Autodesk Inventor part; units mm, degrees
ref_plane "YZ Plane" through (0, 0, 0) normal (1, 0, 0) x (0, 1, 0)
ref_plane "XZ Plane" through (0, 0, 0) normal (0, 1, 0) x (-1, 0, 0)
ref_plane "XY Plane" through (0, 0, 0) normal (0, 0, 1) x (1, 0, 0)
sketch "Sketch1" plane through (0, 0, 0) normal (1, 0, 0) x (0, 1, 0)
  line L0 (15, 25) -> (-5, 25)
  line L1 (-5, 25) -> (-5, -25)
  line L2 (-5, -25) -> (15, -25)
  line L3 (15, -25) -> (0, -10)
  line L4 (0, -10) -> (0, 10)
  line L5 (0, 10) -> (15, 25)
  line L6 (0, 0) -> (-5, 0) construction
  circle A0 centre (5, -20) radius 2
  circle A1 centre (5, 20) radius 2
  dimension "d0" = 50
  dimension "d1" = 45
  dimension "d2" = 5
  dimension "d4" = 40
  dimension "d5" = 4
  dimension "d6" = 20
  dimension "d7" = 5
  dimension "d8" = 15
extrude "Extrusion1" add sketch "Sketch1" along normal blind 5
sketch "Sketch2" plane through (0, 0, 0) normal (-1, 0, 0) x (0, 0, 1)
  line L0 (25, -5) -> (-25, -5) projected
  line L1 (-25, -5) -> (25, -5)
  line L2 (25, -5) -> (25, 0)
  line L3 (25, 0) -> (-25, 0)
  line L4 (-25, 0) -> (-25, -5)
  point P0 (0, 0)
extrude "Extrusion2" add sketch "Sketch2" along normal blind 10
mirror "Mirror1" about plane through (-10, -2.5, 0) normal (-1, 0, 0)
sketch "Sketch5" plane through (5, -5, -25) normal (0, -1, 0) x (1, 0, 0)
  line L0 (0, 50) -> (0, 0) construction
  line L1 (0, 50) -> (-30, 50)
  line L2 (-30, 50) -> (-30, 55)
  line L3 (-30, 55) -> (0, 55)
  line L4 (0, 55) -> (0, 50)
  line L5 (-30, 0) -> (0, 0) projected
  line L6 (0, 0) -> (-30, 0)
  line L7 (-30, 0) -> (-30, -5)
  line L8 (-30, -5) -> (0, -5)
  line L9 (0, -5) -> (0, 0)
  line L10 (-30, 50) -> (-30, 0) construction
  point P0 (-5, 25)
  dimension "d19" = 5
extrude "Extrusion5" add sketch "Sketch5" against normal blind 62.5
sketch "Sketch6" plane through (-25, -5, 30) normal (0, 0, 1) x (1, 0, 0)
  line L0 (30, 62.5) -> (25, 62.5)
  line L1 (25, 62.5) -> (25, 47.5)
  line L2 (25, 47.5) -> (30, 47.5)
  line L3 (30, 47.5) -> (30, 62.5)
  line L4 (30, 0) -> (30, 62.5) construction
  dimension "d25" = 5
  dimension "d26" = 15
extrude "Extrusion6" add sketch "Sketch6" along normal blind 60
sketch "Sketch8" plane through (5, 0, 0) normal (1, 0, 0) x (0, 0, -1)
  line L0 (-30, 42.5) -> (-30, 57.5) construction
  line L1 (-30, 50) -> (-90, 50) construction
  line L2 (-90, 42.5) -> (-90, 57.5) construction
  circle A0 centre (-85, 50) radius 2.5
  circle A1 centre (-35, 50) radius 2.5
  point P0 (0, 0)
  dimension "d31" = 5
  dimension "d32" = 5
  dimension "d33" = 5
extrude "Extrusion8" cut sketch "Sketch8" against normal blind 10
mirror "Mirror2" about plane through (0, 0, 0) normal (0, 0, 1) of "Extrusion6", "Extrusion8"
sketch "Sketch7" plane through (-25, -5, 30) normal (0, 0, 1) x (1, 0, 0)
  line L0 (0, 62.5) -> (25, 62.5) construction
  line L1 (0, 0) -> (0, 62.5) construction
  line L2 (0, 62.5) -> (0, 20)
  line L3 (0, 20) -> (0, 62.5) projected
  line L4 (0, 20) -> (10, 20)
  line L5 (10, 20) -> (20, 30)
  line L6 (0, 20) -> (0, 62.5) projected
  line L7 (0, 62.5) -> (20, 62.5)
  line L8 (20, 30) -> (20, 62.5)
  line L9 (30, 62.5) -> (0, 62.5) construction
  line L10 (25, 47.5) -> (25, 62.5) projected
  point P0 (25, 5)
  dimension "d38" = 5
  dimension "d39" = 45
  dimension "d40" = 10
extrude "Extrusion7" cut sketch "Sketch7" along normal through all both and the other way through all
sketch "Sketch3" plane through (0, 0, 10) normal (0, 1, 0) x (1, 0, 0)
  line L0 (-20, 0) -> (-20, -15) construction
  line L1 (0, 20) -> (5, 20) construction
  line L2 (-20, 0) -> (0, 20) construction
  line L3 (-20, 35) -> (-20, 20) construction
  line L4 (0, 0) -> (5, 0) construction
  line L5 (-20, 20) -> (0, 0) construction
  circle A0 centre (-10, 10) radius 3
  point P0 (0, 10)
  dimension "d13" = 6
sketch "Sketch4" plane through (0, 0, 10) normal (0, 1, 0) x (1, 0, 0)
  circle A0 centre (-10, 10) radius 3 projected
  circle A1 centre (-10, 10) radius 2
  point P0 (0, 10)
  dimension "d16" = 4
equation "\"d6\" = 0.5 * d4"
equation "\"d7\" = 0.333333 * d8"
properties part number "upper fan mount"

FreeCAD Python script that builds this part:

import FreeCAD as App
import Part
import Sketcher

V = App.Vector
Q = App.Units.Quantity

doc = App.newDocument("Part")
body = doc.addObject("PartDesign::Body", "Body")

# Sketch on YZ plane
sketch1 = body.newObject("Sketcher::SketchObject", "Sketch")
sketch1.AttachmentSupport = (doc.getObject("YZ_Plane"), [""])
sketch1.MapMode = "FlatFace"
sketch1.addGeometry(Part.LineSegment(V(0, 10, 0), V(15, 25, 0)), False)
sketch1.addGeometry(Part.LineSegment(V(15, 25, 0), V(-5, 25, 0)), False)
sketch1.addGeometry(Part.LineSegment(V(-5, 25, 0), V(-5, -25, 0)), False)
sketch1.addGeometry(Part.LineSegment(V(-5, -25, 0), V(15, -25, 0)), False)
sketch1.addGeometry(Part.LineSegment(V(15, -25, 0), V(0, -10, 0)), False)
sketch1.addGeometry(Part.LineSegment(V(0, -10, 0), V(0, 10, 0)), False)
sketch1.addGeometry(Part.Circle(V(5, -20, 0), V(0, 0, 1), 2), False)
sketch1.addGeometry(Part.Circle(V(5, 20, 0), V(0, 0, 1), 2), False)
sketch1.addConstraint(Sketcher.Constraint("Coincident", 0, 2, 1, 1))
sketch1.addConstraint(Sketcher.Constraint("Coincident", 1, 2, 2, 1))
sketch1.addConstraint(Sketcher.Constraint("Coincident", 2, 2, 3, 1))
sketch1.addConstraint(Sketcher.Constraint("Coincident", 3, 2, 4, 1))
sketch1.addConstraint(Sketcher.Constraint("Coincident", 4, 2, 5, 1))
sketch1.addConstraint(Sketcher.Constraint("Coincident", 5, 2, 0, 1))
sketch1.addConstraint(Sketcher.Constraint("Horizontal", 1))
sketch1.addConstraint(Sketcher.Constraint("Vertical", 2))
sketch1.addConstraint(Sketcher.Constraint("Horizontal", 3))
sketch1.addConstraint(Sketcher.Constraint("Vertical", 5))
sketch1.addConstraint(Sketcher.Constraint("Equal", 6, 7))
sketch1.addConstraint(Sketcher.Constraint("Symmetric", 4, 2, 5, 2, -1, 1))
sketch1.addConstraint(Sketcher.Constraint("Symmetric", 6, 3, 7, 3, -1))
sketch1.addConstraint(Sketcher.Constraint("Symmetric", 0, 2, 3, 2, -1))
sketch1.addConstraint(Sketcher.Constraint("Perpendicular", 0, 4))
sketch1.addConstraint(Sketcher.Constraint("Equal", 3, 5))
sketch1.addConstraint(Sketcher.Constraint("Diameter", 6, 4.0))
sketch1.addConstraint(Sketcher.Constraint("DistanceX", 1, 2, 1, 1, 20.0))
sketch1.addConstraint(Sketcher.Constraint("DistanceY", 2, 2, 2, 1, 50.0))
sketch1.addConstraint(Sketcher.Constraint("DistanceX", -1, 1, 6, 3, 5.0))
sketch1.addConstraint(Sketcher.Constraint("DistanceY", 6, 3, -1, 1, 20.0))
pad1 = body.newObject("PartDesign::Pad", "Pad")
pad1.Profile = sketch1
pad1.Length = 5

# Sketch on YZ plane
sketch2 = body.newObject("Sketcher::SketchObject", "Sketch001")
sketch2.AttachmentSupport = (doc.getObject("YZ_Plane"), [""])
sketch2.MapMode = "FlatFace"
sketch2.addGeometry(Part.LineSegment(V(-5, -25, 0), V(-5, 25, 0)), False)
sketch2.addGeometry(Part.LineSegment(V(-5, 25, 0), V(0, 25, 0)), False)
sketch2.addGeometry(Part.LineSegment(V(0, 25, 0), V(0, -25, 0)), False)
sketch2.addGeometry(Part.LineSegment(V(0, -25, 0), V(-5, -25, 0)), False)
sketch2.addConstraint(Sketcher.Constraint("Coincident", 0, 2, 1, 1))
sketch2.addConstraint(Sketcher.Constraint("Coincident", 1, 2, 2, 1))
sketch2.addConstraint(Sketcher.Constraint("Coincident", 2, 2, 3, 1))
sketch2.addConstraint(Sketcher.Constraint("Coincident", 3, 2, 0, 1))
sketch2.addConstraint(Sketcher.Constraint("Vertical", 0))
sketch2.addConstraint(Sketcher.Constraint("Horizontal", 1))
sketch2.addConstraint(Sketcher.Constraint("Vertical", 2))
sketch2.addConstraint(Sketcher.Constraint("Horizontal", 3))
sketch2.addConstraint(Sketcher.Constraint("Symmetric", 1, 2, 2, 2, -1, 1))
sketch2.addConstraint(Sketcher.Constraint("DistanceX", 1, 1, 1, 2, 5.0))
sketch2.addConstraint(Sketcher.Constraint("DistanceY", 0, 1, 0, 2, 50.0))
pad2 = body.newObject("PartDesign::Pad", "Pad001")
pad2.Profile = sketch2
pad2.Length = 10
pad2.Reversed = True
doc.recompute()

datumplane = body.newObject("PartDesign::Plane", "DatumPlane")
datumplane.AttachmentSupport = (doc.getObject("YZ_Plane"), [""])
datumplane.MapMode = "FlatFace"
datumplane.AttachmentOffset = App.Placement(V(0, 0, -10), App.Rotation())
mirrored = body.newObject("PartDesign::Mirrored", "Mirrored")
mirrored.TransformMode = "Transform body"
mirrored.MirrorPlane = (datumplane, [""])
body.Tip = mirrored

# Sketch on XZ plane
sketch3 = body.newObject("Sketcher::SketchObject", "Sketch002")
sketch3.AttachmentSupport = (doc.getObject("XZ_Plane"), [""])
sketch3.MapMode = "FlatFace"
sketch3.AttachmentOffset = App.Placement(V(0, 0, 5), App.Rotation())
sketch3.addGeometry(Part.LineSegment(V(-25, 25, 0), V(5, 25, 0)), False)
sketch3.addGeometry(Part.LineSegment(V(5, 25, 0), V(5, 30, 0)), False)
sketch3.addGeometry(Part.LineSegment(V(5, 30, 0), V(-25, 30, 0)), False)
sketch3.addGeometry(Part.LineSegment(V(-25, 30, 0), V(-25, 25, 0)), False)
sketch3.addGeometry(Part.LineSegment(V(5, -25, 0), V(-25, -25, 0)), False)
sketch3.addGeometry(Part.LineSegment(V(-25, -25, 0), V(-25, -30, 0)), False)
sketch3.addGeometry(Part.LineSegment(V(-25, -30, 0), V(5, -30, 0)), False)
sketch3.addGeometry(Part.LineSegment(V(5, -30, 0), V(5, -25, 0)), False)
sketch3.addConstraint(Sketcher.Constraint("Coincident", 0, 2, 1, 1))
sketch3.addConstraint(Sketcher.Constraint("Coincident", 1, 2, 2, 1))
sketch3.addConstraint(Sketcher.Constraint("Coincident", 2, 2, 3, 1))
sketch3.addConstraint(Sketcher.Constraint("Coincident", 3, 2, 0, 1))
sketch3.addConstraint(Sketcher.Constraint("Coincident", 4, 2, 5, 1))
sketch3.addConstraint(Sketcher.Constraint("Coincident", 5, 2, 6, 1))
sketch3.addConstraint(Sketcher.Constraint("Coincident", 6, 2, 7, 1))
sketch3.addConstraint(Sketcher.Constraint("Coincident", 7, 2, 4, 1))
sketch3.addConstraint(Sketcher.Constraint("Horizontal", 0))
sketch3.addConstraint(Sketcher.Constraint("Vertical", 1))
sketch3.addConstraint(Sketcher.Constraint("Horizontal", 2))
sketch3.addConstraint(Sketcher.Constraint("Vertical", 3))
sketch3.addConstraint(Sketcher.Constraint("Horizontal", 4))
sketch3.addConstraint(Sketcher.Constraint("Vertical", 5))
sketch3.addConstraint(Sketcher.Constraint("Horizontal", 6))
sketch3.addConstraint(Sketcher.Constraint("Vertical", 7))
sketch3.addConstraint(Sketcher.Constraint("Symmetric", 3, 2, 4, 2, -1))
sketch3.addConstraint(Sketcher.Constraint("Symmetric", 1, 2, 6, 2, -1))
sketch3.addConstraint(Sketcher.Constraint("DistanceY", 1, 1, 1, 2, 5.0))
sketch3.addConstraint(Sketcher.Constraint("DistanceX", -1, 1, 0, 2, 5.0))
sketch3.addConstraint(Sketcher.Constraint("DistanceX", 0, 1, 0, 2, 30.0))
sketch3.addConstraint(Sketcher.Constraint("DistanceY", -1, 1, 0, 2, 25.0))
pad3 = body.newObject("PartDesign::Pad", "Pad002")
pad3.Profile = sketch3
pad3.Length = 62.5
pad3.Reversed = True

# Sketch on XY plane
sketch4 = body.newObject("Sketcher::SketchObject", "Sketch003")
sketch4.AttachmentSupport = (doc.getObject("XY_Plane"), [""])
sketch4.MapMode = "FlatFace"
sketch4.AttachmentOffset = App.Placement(V(0, 0, 30), App.Rotation())
sketch4.addGeometry(Part.LineSegment(V(5, 42.5, 0), V(5, 57.5, 0)), False)
sketch4.addGeometry(Part.LineSegment(V(5, 57.5, 0), V(0, 57.5, 0)), False)
sketch4.addGeometry(Part.LineSegment(V(0, 57.5, 0), V(0, 42.5, 0)), False)
sketch4.addGeometry(Part.LineSegment(V(0, 42.5, 0), V(5, 42.5, 0)), False)
sketch4.addConstraint(Sketcher.Constraint("Coincident", 0, 2, 1, 1))
sketch4.addConstraint(Sketcher.Constraint("Coincident", 1, 2, 2, 1))
sketch4.addConstraint(Sketcher.Constraint("Coincident", 2, 2, 3, 1))
sketch4.addConstraint(Sketcher.Constraint("Coincident", 3, 2, 0, 1))
sketch4.addConstraint(Sketcher.Constraint("Vertical", 0))
sketch4.addConstraint(Sketcher.Constraint("Horizontal", 1))
sketch4.addConstraint(Sketcher.Constraint("Vertical", 2))
sketch4.addConstraint(Sketcher.Constraint("Horizontal", 3))
sketch4.addConstraint(Sketcher.Constraint("PointOnObject", 1, 2, -2))
sketch4.addConstraint(Sketcher.Constraint("DistanceX", 1, 2, 1, 1, 5.0))
sketch4.addConstraint(Sketcher.Constraint("DistanceY", 0, 1, 0, 2, 15.0))
sketch4.addConstraint(Sketcher.Constraint("DistanceY", -1, 1, 0, 2, 57.5))
pad4 = body.newObject("PartDesign::Pad", "Pad003")
pad4.Profile = sketch4
pad4.Length = 60

# Sketch on YZ plane
sketch5 = body.newObject("Sketcher::SketchObject", "Sketch004")
sketch5.AttachmentSupport = (doc.getObject("YZ_Plane"), [""])
sketch5.MapMode = "FlatFace"
sketch5.AttachmentOffset = App.Placement(V(0, 0, 5), App.Rotation())
sketch5.addGeometry(Part.Circle(V(50, 85, 0), V(0, 0, 1), 2.5), False)
sketch5.addGeometry(Part.Circle(V(50, 35, 0), V(0, 0, 1), 2.5), False)
sketch5.addConstraint(Sketcher.Constraint("Equal", 0, 1))
sketch5.addConstraint(Sketcher.Constraint("Vertical", 0, 3, 1, 3))
sketch5.addConstraint(Sketcher.Constraint("Diameter", 0, 5.0))
sketch5.addConstraint(Sketcher.Constraint("DistanceX", -1, 1, 0, 3, 50.0))
sketch5.addConstraint(Sketcher.Constraint("DistanceY", -1, 1, 0, 3, 85.0))
sketch5.addConstraint(Sketcher.Constraint("DistanceY", -1, 1, 1, 3, 35.0))
pocket1 = body.newObject("PartDesign::Pocket", "Pocket")
pocket1.Profile = sketch5
pocket1.Length = 10
doc.recompute()

mirrored2 = body.newObject("PartDesign::Mirrored", "Mirrored001")
mirrored2.Originals = [pad4, pocket1]
mirrored2.MirrorPlane = (doc.getObject("XY_Plane"), [""])
body.Tip = mirrored2

# Sketch on XY plane
sketch6 = body.newObject("Sketcher::SketchObject", "Sketch005")
sketch6.AttachmentSupport = (doc.getObject("XY_Plane"), [""])
sketch6.MapMode = "FlatFace"
sketch6.AttachmentOffset = App.Placement(V(0, 0, 30), App.Rotation())
sketch6.addGeometry(Part.LineSegment(V(-5, 57.5, 0), V(-25, 57.5, 0)), False)
sketch6.addGeometry(Part.LineSegment(V(-25, 57.5, 0), V(-25, 15, 0)), False)
sketch6.addGeometry(Part.LineSegment(V(-25, 15, 0), V(-15, 15, 0)), False)
sketch6.addGeometry(Part.LineSegment(V(-15, 15, 0), V(-5, 25, 0)), False)
sketch6.addGeometry(Part.LineSegment(V(-5, 25, 0), V(-5, 57.5, 0)), False)
sketch6.addConstraint(Sketcher.Constraint("Coincident", 0, 2, 1, 1))
sketch6.addConstraint(Sketcher.Constraint("Coincident", 1, 2, 2, 1))
sketch6.addConstraint(Sketcher.Constraint("Coincident", 2, 2, 3, 1))
sketch6.addConstraint(Sketcher.Constraint("Coincident", 3, 2, 4, 1))
sketch6.addConstraint(Sketcher.Constraint("Coincident", 4, 2, 0, 1))
sketch6.addConstraint(Sketcher.Constraint("Horizontal", 0))
sketch6.addConstraint(Sketcher.Constraint("Vertical", 1))
sketch6.addConstraint(Sketcher.Constraint("Horizontal", 2))
sketch6.addConstraint(Sketcher.Constraint("Vertical", 4))
sketch6.addConstraint(Sketcher.Constraint("DistanceX", 2, 1, 2, 2, 10.0))
sketch6.addConstraint(Sketcher.Constraint("Angle", 3, Q("45 deg")))
sketch6.addConstraint(Sketcher.Constraint("DistanceX", 3, 2, -1, 1, 5.0))
sketch6.addConstraint(Sketcher.Constraint("DistanceX", 2, 2, 3, 2, 10.0))
sketch6.addConstraint(Sketcher.Constraint("DistanceY", 1, 2, 1, 1, 42.5))
sketch6.addConstraint(Sketcher.Constraint("DistanceY", -1, 1, 1, 2, 15.0))
pocket2 = body.newObject("PartDesign::Pocket", "Pocket001")
pocket2.Profile = sketch6
pocket2.Type = "ThroughAll"
pocket2.Midplane = True

doc.recompute()
